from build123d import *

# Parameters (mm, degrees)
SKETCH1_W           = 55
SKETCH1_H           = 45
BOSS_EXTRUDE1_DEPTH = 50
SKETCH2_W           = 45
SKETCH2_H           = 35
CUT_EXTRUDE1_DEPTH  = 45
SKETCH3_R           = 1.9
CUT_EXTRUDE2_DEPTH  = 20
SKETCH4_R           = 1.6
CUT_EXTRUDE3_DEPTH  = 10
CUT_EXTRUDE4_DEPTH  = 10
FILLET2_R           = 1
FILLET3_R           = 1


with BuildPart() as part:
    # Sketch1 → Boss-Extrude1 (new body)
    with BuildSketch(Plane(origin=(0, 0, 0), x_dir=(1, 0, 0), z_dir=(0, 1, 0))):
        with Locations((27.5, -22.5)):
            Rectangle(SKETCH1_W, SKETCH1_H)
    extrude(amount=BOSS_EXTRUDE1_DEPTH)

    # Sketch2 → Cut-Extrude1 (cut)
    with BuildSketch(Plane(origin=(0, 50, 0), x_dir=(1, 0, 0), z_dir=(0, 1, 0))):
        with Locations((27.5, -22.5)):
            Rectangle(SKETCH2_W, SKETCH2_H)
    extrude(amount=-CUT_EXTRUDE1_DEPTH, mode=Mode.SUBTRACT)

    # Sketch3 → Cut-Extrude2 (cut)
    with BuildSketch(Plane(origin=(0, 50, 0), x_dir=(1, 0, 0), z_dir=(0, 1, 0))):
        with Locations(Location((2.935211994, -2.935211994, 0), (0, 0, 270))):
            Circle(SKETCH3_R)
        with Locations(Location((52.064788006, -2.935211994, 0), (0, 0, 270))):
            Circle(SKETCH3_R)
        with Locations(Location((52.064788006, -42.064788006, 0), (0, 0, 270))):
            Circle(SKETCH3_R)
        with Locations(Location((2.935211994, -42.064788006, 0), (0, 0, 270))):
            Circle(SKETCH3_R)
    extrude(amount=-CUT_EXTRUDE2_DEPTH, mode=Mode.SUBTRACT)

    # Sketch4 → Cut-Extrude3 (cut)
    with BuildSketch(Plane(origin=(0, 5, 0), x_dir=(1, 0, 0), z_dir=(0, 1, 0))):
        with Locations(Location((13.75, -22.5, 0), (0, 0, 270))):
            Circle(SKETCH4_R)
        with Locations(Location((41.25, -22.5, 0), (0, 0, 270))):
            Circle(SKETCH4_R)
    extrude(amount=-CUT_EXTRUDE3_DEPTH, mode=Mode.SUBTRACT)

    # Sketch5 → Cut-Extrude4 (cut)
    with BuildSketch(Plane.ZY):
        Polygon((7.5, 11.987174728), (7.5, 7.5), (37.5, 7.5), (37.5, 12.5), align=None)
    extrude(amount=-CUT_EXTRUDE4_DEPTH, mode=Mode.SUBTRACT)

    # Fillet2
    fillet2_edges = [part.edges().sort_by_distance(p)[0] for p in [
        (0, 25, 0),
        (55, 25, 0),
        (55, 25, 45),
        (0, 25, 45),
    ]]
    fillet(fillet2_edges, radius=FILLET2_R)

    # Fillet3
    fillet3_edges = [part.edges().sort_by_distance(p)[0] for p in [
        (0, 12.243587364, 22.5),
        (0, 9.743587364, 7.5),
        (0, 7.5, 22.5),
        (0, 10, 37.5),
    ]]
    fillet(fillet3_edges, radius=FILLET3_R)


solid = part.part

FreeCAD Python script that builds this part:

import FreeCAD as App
import Part
import Sketcher
from FreeCAD import Vector


def edges_at(feature, points):
    """Names of the edges that pass closest to the given points."""
    edges = feature.Shape.Edges
    near = lambda p: min(range(len(edges)), key=lambda i: edges[i].distToShape(Part.Vertex(*p))[0])
    return sorted({f"Edge{near(p) + 1}" for p in points})


def add_polygon(sketch, points):
    """Adds a closed chain of lines whose ends are joined by coincident constraints."""
    first, n = sketch.GeometryCount, len(points)
    for a, b in zip(points, points[1:] + points[:1]):
        sketch.addGeometry(Part.LineSegment(App.Vector(*a, 0), App.Vector(*b, 0)), False)
    for i in range(n):
        sketch.addConstraint(Sketcher.Constraint("Coincident", first + i, 2, first + (i + 1) % n, 1))

doc = App.newDocument("Part")
body = doc.addObject("PartDesign::Body", "Body")

# Sketch on XZ plane
sketch1 = body.newObject("Sketcher::SketchObject", "Sketch")
sketch1.AttachmentSupport = (doc.getObject("XZ_Plane"), [""])
sketch1.MapMode = "FlatFace"
add_polygon(sketch1, [(0, 0), (0, 45), (55, 45), (55, 0)])  # lines 0-3
sketch1.addConstraint(Sketcher.Constraint("Vertical", 0))
sketch1.addConstraint(Sketcher.Constraint("Horizontal", 1))
sketch1.addConstraint(Sketcher.Constraint("Vertical", 2))
sketch1.addConstraint(Sketcher.Constraint("Horizontal", 3))
sketch1.addConstraint(Sketcher.Constraint("Coincident", 3, 2, -1, 1))
sketch1.addConstraint(Sketcher.Constraint("DistanceX", 1, 1, 1, 2, 55.0))
sketch1.addConstraint(Sketcher.Constraint("DistanceY", 0, 1, 0, 2, 45.0))
pad1 = body.newObject("PartDesign::Pad", "Pad")
pad1.Profile = sketch1
pad1.Length = 50
pad1.Reversed = True

# Sketch on XZ plane
sketch2 = body.newObject("Sketcher::SketchObject", "Sketch001")
sketch2.AttachmentSupport = (doc.getObject("XZ_Plane"), [""])
sketch2.MapMode = "FlatFace"
sketch2.AttachmentOffset = App.Placement(Vector(0, 0, -50), App.Rotation())
add_polygon(sketch2, [(5, 5), (5, 40), (50, 40), (50, 5)])  # lines 0-3
sketch2.addConstraint(Sketcher.Constraint("Vertical", 0))
sketch2.addConstraint(Sketcher.Constraint("Horizontal", 1))
sketch2.addConstraint(Sketcher.Constraint("Vertical", 2))
sketch2.addConstraint(Sketcher.Constraint("Horizontal", 3))
sketch2.addConstraint(Sketcher.Constraint("DistanceX", 1, 1, 1, 2, 45.0))
sketch2.addConstraint(Sketcher.Constraint("DistanceY", 0, 1, 0, 2, 35.0))
sketch2.addConstraint(Sketcher.Constraint("DistanceX", -1, 1, 0, 2, 5.0))
sketch2.addConstraint(Sketcher.Constraint("DistanceY", -1, 1, 0, 2, 40.0))
pocket1 = body.newObject("PartDesign::Pocket", "Pocket")
pocket1.Profile = sketch2
pocket1.Length = 45
pocket1.Reversed = True

# Sketch on XZ plane
sketch3 = body.newObject("Sketcher::SketchObject", "Sketch002")
sketch3.AttachmentSupport = (doc.getObject("XZ_Plane"), [""])
sketch3.MapMode = "FlatFace"
sketch3.AttachmentOffset = App.Placement(Vector(0, 0, -50), App.Rotation())
sketch3.addGeometry(Part.Circle(Vector(2.9, 2.9, 0), Vector(0, 0, 1), 1.9), False)
sketch3.addGeometry(Part.Circle(Vector(52.1, 2.9, 0), Vector(0, 0, 1), 1.9), False)
sketch3.addGeometry(Part.Circle(Vector(52.1, 42.1, 0), Vector(0, 0, 1), 1.9), False)
sketch3.addGeometry(Part.Circle(Vector(2.9, 42.1, 0), Vector(0, 0, 1), 1.9), False)
sketch3.addConstraint(Sketcher.Constraint("Equal", 0, 1))
sketch3.addConstraint(Sketcher.Constraint("Equal", 1, 2))
sketch3.addConstraint(Sketcher.Constraint("Equal", 2, 3))
sketch3.addConstraint(Sketcher.Constraint("Horizontal", 0, 3, 1, 3))
sketch3.addConstraint(Sketcher.Constraint("Horizontal", 2, 3, 3, 3))
sketch3.addConstraint(Sketcher.Constraint("Vertical", 1, 3, 2, 3))
sketch3.addConstraint(Sketcher.Constraint("Vertical", 0, 3, 3, 3))
sketch3.addConstraint(Sketcher.Constraint("Diameter", 0, 3.8))
sketch3.addConstraint(Sketcher.Constraint("DistanceX", -1, 1, 0, 3, 2.935212))
sketch3.addConstraint(Sketcher.Constraint("DistanceY", -1, 1, 0, 3, 2.935212))
sketch3.addConstraint(Sketcher.Constraint("DistanceX", -1, 1, 1, 3, 52.064788))
sketch3.addConstraint(Sketcher.Constraint("DistanceY", -1, 1, 2, 3, 42.064788))
pocket2 = body.newObject("PartDesign::Pocket", "Pocket001")
pocket2.Profile = sketch3
pocket2.Length = 20
pocket2.Reversed = True

# Sketch on XZ plane
sketch4 = body.newObject("Sketcher::SketchObject", "Sketch003")
sketch4.AttachmentSupport = (doc.getObject("XZ_Plane"), [""])
sketch4.MapMode = "FlatFace"
sketch4.AttachmentOffset = App.Placement(Vector(0, 0, -5), App.Rotation())
sketch4.addGeometry(Part.Circle(Vector(13.8, 22.5, 0), Vector(0, 0, 1), 1.6), False)
sketch4.addGeometry(Part.Circle(Vector(41.2, 22.5, 0), Vector(0, 0, 1), 1.6), False)
sketch4.addConstraint(Sketcher.Constraint("Equal", 0, 1))
sketch4.addConstraint(Sketcher.Constraint("Horizontal", 0, 3, 1, 3))
sketch4.addConstraint(Sketcher.Constraint("Diameter", 0, 3.2))
sketch4.addConstraint(Sketcher.Constraint("DistanceY", -1, 1, 0, 3, 22.5))
sketch4.addConstraint(Sketcher.Constraint("DistanceX", 0, 3, 1, 3, 27.5))
sketch4.addConstraint(Sketcher.Constraint("DistanceX", -1, 1, 0, 3, 13.75))
pocket3 = body.newObject("PartDesign::Pocket", "Pocket002")
pocket3.Profile = sketch4
pocket3.Length = 10
pocket3.Reversed = True

# Sketch on YZ plane
sketch5 = body.newObject("Sketcher::SketchObject", "Sketch004")
sketch5.AttachmentSupport = (doc.getObject("YZ_Plane"), [""])
sketch5.MapMode = "FlatFace"
add_polygon(sketch5, [(12, 7.5), (7.5, 7.5), (7.5, 37.5), (12.5, 37.5)])  # lines 0-3
sketch5.addConstraint(Sketcher.Constraint("Horizontal", 0))
sketch5.addConstraint(Sketcher.Constraint("Vertical", 1))
sketch5.addConstraint(Sketcher.Constraint("Horizontal", 2))
sketch5.addConstraint(Sketcher.Constraint("DistanceX", 2, 1, 2, 2, 5.0))
sketch5.addConstraint(Sketcher.Constraint("DistanceY", 1, 1, 1, 2, 30.0))
sketch5.addConstraint(Sketcher.Constraint("DistanceX", -1, 1, 0, 2, 7.5))
sketch5.addConstraint(Sketcher.Constraint("DistanceY", -1, 1, 0, 2, 7.5))
sketch5.addConstraint(Sketcher.Constraint("DistanceX", 0, 2, 0, 1, 4.487175))
pocket4 = body.newObject("PartDesign::Pocket", "Pocket003")
pocket4.Profile = sketch5
pocket4.Length = 10
pocket4.Reversed = True
doc.recompute()

fillet = body.newObject("PartDesign::Fillet", "Fillet")
fillet.Base = (pocket4, edges_at(pocket4, [
    (0, 25, 0),
    (55, 25, 0),
    (55, 25, 45),
    (0, 25, 45),
]))
fillet.Radius = 1
doc.recompute()

fillet2 = body.newObject("PartDesign::Fillet", "Fillet001")
fillet2.Base = (fillet, edges_at(fillet, [
    (0, 12.244, 22.5),
    (0, 9.744, 7.5),
    (0, 7.5, 22.5),
    (0, 10, 37.5),
]))
fillet2.Radius = 1

doc.recompute()
